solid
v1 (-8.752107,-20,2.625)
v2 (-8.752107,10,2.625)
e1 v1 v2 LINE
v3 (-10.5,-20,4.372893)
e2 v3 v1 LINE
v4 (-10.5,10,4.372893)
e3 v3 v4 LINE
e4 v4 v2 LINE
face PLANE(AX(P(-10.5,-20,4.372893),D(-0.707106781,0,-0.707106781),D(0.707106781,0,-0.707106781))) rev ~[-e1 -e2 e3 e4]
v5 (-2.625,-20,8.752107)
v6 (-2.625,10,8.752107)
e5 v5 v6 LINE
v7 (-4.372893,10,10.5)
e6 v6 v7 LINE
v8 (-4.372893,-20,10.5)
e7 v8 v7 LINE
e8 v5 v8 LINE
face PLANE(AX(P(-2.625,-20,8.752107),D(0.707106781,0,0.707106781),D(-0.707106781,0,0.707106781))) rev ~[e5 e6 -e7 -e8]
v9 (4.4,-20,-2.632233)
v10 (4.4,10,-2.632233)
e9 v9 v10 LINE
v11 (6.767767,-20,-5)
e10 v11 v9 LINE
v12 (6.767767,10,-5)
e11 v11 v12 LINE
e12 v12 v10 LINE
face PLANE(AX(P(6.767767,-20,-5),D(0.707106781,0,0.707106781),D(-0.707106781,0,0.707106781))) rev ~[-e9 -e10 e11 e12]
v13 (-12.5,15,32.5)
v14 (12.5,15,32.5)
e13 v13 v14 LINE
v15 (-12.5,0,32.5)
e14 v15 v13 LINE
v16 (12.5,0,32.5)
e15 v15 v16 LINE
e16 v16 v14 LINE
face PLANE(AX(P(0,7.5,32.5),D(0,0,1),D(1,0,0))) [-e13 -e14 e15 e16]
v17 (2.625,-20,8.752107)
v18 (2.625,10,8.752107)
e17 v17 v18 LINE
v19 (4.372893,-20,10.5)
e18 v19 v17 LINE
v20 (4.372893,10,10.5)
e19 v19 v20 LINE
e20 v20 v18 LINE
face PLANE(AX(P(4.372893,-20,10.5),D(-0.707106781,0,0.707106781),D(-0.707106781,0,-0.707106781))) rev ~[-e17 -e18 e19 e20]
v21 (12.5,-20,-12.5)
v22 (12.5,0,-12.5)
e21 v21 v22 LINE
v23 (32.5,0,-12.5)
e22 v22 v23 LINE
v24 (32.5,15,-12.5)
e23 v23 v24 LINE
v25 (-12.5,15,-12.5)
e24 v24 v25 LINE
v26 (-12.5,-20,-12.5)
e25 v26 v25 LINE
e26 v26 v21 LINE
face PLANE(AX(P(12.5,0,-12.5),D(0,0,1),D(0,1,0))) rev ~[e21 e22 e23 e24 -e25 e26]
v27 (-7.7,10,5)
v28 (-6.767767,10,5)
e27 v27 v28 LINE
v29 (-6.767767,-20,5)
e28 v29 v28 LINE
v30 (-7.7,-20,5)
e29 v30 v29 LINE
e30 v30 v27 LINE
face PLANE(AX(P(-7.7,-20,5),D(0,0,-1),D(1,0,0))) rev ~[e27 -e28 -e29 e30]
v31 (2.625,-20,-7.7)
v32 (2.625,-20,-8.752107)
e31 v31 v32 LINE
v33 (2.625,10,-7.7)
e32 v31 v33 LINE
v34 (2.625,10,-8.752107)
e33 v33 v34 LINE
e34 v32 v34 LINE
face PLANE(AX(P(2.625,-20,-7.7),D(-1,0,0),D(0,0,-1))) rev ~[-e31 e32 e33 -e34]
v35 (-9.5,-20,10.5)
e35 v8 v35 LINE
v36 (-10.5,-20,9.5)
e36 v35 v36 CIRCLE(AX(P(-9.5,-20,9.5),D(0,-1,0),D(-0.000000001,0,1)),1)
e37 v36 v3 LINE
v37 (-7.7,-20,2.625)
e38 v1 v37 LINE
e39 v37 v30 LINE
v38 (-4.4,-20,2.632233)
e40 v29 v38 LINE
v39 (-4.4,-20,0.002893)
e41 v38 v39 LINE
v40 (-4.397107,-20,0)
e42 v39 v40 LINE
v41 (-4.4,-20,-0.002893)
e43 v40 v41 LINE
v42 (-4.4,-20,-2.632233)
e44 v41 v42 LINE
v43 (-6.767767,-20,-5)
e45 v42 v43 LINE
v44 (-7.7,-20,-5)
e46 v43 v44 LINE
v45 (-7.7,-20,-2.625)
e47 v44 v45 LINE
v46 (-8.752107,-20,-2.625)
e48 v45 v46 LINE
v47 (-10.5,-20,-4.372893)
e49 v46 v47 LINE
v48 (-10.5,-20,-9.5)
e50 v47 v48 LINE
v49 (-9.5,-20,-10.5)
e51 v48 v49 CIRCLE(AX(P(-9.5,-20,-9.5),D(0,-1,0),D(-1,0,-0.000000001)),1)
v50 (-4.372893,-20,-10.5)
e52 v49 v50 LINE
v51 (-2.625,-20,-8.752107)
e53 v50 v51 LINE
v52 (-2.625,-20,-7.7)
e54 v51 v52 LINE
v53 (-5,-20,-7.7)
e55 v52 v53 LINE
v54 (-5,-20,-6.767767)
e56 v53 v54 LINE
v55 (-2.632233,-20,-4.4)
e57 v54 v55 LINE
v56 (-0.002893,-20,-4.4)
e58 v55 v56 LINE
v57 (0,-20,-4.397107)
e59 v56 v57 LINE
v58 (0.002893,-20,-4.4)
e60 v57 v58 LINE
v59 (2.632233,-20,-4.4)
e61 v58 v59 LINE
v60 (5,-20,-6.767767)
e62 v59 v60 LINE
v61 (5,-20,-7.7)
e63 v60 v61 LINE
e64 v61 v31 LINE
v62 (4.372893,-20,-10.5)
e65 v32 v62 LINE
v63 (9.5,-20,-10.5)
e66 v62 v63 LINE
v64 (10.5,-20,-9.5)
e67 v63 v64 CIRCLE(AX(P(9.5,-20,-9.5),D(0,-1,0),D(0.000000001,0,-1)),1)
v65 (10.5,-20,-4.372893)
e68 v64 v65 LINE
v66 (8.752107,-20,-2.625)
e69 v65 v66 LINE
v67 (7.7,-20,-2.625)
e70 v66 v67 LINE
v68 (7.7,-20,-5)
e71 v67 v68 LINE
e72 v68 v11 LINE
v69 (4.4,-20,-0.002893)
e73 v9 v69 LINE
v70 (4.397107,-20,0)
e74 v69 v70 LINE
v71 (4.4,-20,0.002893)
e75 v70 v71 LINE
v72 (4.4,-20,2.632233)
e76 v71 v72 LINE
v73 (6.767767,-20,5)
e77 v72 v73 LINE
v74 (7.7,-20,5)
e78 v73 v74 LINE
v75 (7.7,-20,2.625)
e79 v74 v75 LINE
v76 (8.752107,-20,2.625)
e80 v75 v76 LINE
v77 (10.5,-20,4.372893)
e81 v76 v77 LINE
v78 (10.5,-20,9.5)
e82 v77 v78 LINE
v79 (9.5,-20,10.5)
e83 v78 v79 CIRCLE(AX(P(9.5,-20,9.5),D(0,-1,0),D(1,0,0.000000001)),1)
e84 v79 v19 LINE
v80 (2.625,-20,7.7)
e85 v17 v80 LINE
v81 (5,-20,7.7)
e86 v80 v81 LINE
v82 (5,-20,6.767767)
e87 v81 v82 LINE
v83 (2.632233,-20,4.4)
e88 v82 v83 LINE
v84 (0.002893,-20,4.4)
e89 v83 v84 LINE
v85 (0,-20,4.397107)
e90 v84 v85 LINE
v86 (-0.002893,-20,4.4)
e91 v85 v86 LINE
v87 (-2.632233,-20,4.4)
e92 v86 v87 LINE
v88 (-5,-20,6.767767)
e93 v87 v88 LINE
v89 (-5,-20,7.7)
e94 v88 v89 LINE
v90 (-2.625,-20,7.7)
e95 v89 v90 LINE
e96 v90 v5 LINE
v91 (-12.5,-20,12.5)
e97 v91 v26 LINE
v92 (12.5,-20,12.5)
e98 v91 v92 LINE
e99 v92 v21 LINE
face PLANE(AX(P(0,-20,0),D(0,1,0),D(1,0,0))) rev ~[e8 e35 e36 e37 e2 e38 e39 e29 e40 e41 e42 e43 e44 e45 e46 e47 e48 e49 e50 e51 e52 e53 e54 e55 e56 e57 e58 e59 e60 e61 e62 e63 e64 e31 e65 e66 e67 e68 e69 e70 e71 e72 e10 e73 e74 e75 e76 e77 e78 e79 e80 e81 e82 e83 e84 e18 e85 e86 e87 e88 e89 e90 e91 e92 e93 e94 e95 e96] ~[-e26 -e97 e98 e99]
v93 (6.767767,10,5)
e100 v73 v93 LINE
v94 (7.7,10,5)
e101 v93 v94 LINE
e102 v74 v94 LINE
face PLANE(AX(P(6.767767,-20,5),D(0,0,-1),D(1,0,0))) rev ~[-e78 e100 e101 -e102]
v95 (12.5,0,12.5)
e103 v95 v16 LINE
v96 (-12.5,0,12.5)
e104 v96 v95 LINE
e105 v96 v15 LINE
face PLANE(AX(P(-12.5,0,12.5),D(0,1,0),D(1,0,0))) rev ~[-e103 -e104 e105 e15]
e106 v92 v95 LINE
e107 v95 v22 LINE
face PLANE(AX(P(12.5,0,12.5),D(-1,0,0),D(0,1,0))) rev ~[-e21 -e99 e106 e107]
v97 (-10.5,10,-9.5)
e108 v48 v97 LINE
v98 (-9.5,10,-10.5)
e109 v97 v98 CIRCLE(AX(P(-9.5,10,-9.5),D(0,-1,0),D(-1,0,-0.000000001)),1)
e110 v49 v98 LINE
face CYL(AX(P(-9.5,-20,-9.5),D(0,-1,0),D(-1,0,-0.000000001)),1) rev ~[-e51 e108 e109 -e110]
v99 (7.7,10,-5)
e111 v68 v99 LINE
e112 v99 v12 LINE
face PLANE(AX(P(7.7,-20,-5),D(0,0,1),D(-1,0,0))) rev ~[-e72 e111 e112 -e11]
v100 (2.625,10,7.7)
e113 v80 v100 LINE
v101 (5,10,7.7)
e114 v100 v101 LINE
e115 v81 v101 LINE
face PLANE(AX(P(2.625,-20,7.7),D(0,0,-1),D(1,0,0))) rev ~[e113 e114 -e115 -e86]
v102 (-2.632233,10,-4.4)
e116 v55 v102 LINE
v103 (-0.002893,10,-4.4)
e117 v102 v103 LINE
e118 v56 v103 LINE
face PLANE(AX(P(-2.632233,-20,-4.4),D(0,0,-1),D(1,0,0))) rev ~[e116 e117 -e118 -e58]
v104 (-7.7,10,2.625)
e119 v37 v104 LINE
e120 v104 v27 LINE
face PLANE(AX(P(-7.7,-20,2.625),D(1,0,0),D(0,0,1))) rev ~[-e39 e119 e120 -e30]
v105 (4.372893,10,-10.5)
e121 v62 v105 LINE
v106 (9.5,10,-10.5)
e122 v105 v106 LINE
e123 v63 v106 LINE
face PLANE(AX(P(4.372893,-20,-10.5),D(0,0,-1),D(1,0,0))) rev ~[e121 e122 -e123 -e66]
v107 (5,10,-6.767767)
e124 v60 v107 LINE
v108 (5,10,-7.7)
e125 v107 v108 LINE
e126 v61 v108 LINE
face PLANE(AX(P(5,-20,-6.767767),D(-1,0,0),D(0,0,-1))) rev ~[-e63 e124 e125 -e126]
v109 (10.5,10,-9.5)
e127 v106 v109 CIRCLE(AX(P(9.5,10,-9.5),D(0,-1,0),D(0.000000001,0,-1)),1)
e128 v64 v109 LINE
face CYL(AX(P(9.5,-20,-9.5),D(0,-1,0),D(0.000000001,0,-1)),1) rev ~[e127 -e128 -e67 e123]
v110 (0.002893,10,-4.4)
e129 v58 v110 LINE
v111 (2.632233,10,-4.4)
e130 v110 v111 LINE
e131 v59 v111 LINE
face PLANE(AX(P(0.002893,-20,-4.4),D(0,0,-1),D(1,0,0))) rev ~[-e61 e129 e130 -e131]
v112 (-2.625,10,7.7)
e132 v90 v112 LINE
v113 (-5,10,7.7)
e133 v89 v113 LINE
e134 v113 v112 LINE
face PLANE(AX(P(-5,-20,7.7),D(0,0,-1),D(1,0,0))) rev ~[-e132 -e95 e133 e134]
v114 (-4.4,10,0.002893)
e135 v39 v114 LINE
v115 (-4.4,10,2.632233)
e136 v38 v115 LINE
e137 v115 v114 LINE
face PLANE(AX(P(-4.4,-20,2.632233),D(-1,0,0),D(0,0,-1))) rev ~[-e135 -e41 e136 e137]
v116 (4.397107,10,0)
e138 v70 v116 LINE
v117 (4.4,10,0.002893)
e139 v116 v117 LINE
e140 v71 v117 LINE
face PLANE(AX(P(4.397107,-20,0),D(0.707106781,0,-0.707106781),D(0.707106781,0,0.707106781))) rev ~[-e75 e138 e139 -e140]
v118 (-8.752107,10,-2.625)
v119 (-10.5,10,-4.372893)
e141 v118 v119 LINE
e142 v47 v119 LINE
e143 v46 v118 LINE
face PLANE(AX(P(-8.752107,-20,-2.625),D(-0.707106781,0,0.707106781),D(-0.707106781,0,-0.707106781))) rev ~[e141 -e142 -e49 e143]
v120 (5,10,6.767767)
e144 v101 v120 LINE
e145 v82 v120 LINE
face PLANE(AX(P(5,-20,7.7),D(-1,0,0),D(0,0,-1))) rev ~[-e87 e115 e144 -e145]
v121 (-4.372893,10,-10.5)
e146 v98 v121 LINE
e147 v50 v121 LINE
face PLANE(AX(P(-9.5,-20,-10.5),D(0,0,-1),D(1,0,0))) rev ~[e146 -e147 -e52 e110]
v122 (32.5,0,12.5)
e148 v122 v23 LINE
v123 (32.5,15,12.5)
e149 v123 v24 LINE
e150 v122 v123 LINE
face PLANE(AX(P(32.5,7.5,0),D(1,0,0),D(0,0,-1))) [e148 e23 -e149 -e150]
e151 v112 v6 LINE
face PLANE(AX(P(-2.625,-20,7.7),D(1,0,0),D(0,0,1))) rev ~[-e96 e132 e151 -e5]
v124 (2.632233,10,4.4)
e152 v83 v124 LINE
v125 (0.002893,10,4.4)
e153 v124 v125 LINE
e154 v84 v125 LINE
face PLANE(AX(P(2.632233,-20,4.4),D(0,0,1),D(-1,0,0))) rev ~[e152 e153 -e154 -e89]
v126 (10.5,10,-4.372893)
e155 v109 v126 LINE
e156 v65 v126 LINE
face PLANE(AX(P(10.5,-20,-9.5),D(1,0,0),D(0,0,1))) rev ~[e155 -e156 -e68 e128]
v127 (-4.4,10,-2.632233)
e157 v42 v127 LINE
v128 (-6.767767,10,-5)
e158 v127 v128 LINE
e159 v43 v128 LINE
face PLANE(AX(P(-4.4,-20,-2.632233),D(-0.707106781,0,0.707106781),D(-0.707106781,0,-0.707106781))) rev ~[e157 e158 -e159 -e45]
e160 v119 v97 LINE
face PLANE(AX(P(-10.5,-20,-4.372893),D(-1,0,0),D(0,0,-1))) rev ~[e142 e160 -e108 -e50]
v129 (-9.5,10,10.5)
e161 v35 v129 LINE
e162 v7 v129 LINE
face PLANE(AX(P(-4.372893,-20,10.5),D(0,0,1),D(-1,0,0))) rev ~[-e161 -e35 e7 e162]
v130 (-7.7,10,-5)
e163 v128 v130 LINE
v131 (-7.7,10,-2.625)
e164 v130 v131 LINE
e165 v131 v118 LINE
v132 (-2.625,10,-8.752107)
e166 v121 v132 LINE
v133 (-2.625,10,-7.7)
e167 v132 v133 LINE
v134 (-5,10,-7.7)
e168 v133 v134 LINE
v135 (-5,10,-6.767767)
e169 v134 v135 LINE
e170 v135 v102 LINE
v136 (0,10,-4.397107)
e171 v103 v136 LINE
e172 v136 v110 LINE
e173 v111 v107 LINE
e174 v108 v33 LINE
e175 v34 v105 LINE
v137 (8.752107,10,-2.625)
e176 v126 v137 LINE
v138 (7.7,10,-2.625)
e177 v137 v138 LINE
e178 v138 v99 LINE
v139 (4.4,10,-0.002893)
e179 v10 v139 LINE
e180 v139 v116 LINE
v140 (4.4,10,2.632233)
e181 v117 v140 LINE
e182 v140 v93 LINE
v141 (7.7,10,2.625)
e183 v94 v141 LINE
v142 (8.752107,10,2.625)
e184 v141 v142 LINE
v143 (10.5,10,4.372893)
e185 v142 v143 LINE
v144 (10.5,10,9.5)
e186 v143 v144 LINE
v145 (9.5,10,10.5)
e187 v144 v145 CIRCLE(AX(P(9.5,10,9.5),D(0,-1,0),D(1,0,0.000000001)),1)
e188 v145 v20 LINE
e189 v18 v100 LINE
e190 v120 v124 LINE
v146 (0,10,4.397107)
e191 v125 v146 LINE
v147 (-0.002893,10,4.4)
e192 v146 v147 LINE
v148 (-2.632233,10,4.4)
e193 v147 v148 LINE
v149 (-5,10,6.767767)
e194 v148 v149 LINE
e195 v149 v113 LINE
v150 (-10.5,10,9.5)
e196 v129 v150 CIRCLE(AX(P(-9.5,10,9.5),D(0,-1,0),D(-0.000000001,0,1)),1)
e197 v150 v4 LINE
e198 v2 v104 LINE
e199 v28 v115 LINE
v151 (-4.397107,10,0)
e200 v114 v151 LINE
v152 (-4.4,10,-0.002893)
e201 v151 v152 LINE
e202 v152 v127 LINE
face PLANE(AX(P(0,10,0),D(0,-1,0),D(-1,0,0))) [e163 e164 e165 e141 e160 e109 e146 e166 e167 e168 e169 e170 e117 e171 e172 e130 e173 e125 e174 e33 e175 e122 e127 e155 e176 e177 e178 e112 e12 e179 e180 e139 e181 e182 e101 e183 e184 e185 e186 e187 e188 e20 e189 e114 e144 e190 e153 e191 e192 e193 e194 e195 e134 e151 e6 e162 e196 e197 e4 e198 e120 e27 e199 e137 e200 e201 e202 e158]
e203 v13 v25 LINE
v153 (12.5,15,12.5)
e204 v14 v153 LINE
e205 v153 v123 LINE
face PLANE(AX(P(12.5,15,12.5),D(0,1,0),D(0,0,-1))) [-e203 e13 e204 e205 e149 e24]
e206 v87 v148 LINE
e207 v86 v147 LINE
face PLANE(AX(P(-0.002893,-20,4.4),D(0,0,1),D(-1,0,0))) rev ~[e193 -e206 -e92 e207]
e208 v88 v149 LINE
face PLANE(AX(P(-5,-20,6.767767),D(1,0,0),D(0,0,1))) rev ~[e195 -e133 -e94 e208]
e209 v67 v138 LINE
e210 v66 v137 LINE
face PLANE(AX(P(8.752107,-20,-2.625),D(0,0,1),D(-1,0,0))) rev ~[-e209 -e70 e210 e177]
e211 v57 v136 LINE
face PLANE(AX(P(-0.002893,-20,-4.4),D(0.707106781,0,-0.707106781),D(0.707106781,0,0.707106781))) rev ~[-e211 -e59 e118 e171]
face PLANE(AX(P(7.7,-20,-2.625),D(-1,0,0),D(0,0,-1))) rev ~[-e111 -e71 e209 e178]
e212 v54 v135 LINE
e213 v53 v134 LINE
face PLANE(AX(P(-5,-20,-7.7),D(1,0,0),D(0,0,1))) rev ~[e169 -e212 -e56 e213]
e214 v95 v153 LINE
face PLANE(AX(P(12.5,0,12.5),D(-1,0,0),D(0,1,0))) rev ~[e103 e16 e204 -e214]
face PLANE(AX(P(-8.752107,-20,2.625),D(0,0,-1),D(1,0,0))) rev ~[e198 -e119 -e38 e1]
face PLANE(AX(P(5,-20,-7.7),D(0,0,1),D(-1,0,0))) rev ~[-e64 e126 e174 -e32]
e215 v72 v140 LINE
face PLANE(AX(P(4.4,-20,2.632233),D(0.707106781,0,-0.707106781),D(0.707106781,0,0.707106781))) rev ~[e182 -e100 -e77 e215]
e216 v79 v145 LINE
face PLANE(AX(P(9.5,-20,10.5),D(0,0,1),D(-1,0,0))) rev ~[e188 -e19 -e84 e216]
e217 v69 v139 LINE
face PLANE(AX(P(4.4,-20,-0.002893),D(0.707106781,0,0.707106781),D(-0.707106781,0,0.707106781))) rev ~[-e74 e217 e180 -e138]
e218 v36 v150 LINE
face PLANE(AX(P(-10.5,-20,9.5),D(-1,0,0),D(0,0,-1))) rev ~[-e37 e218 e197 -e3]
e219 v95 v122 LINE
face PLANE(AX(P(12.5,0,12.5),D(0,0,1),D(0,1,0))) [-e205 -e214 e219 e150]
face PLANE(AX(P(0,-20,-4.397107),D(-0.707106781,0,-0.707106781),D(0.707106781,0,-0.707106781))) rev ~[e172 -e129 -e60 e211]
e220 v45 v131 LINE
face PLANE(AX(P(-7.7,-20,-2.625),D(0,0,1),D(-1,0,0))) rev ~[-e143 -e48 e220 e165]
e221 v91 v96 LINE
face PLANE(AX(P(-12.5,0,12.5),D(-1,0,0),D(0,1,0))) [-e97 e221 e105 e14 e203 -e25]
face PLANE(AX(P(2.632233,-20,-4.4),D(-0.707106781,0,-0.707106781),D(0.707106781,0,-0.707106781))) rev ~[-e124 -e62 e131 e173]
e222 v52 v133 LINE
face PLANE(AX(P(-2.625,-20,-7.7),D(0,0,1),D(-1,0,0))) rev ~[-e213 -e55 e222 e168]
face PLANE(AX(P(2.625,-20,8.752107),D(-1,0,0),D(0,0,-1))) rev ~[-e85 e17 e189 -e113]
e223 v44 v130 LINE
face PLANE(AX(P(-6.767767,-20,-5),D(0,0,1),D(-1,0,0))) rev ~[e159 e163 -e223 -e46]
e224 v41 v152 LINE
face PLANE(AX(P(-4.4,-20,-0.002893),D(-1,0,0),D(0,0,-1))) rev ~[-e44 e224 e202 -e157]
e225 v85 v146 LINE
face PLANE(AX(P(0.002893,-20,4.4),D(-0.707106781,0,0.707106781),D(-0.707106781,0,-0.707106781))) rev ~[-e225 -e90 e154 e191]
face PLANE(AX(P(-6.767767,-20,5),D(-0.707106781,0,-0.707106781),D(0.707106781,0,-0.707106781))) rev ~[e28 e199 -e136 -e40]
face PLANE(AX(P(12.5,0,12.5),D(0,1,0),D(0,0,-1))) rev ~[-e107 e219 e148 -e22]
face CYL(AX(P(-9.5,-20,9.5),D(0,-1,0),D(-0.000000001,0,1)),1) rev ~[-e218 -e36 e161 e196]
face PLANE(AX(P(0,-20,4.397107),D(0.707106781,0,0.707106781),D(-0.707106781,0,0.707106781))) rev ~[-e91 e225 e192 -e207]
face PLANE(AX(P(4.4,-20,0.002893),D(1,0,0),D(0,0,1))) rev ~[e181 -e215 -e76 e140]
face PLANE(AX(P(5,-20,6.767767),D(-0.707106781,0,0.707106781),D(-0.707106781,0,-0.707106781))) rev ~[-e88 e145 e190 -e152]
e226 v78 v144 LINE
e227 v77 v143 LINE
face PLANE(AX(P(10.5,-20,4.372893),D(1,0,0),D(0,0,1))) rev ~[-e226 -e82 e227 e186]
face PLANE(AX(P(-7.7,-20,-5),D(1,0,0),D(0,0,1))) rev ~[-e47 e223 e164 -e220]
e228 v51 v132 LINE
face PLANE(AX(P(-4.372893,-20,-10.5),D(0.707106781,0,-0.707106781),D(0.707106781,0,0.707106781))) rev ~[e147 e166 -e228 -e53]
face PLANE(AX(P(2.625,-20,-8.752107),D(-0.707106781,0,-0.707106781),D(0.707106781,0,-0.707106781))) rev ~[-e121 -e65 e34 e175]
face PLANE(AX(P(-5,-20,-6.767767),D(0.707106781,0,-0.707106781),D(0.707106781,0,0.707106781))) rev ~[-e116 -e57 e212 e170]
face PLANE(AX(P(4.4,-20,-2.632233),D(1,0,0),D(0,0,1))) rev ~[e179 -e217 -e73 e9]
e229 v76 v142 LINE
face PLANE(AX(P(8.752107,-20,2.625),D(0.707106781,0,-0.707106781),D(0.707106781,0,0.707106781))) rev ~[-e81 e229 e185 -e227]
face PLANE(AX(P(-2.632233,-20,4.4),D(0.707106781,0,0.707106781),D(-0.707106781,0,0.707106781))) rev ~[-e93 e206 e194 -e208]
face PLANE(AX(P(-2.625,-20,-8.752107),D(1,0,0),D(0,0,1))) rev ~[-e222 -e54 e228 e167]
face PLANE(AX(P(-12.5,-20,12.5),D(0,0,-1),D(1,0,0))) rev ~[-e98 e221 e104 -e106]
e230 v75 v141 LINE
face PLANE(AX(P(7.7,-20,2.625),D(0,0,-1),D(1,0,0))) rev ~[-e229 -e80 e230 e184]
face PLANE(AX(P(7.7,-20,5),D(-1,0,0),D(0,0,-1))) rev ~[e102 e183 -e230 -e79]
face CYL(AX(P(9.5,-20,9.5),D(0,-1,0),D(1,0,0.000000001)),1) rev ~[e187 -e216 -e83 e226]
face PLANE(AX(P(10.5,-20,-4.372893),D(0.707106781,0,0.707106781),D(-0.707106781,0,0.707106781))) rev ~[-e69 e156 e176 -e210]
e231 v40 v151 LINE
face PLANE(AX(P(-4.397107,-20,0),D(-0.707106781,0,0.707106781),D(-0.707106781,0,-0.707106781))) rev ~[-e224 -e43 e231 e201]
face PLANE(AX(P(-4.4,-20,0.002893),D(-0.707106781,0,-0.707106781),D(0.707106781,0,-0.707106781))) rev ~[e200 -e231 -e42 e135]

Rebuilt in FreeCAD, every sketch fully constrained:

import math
import FreeCAD as App
import Part
import Sketcher
from FreeCAD import Vector

doc = App.newDocument("Part")
body = doc.addObject("PartDesign::Body", "Body")

# Sketch on XZ plane
sketch1 = body.newObject("Sketcher::SketchObject", "Sketch")
sketch1.AttachmentSupport = (doc.getObject("XZ_Plane"), [""])
sketch1.MapMode = "FlatFace"
sketch1.addGeometry(Part.LineSegment(Vector(-12.5, -12.5, 0), Vector(-12.5, 12.5, 0)), False)
sketch1.addGeometry(Part.LineSegment(Vector(-12.5, 12.5, 0), Vector(12.5, 12.5, 0)), False)
sketch1.addGeometry(Part.LineSegment(Vector(12.5, 12.5, 0), Vector(12.5, -12.5, 0)), False)
sketch1.addGeometry(Part.LineSegment(Vector(12.5, -12.5, 0), Vector(-12.5, -12.5, 0)), False)
sketch1.addConstraint(Sketcher.Constraint("Coincident", 0, 2, 1, 1))
sketch1.addConstraint(Sketcher.Constraint("Coincident", 1, 2, 2, 1))
sketch1.addConstraint(Sketcher.Constraint("Coincident", 2, 2, 3, 1))
sketch1.addConstraint(Sketcher.Constraint("Coincident", 3, 2, 0, 1))
sketch1.addConstraint(Sketcher.Constraint("Vertical", 0))
sketch1.addConstraint(Sketcher.Constraint("Horizontal", 1))
sketch1.addConstraint(Sketcher.Constraint("Vertical", 2))
sketch1.addConstraint(Sketcher.Constraint("Horizontal", 3))
sketch1.addConstraint(Sketcher.Constraint("Symmetric", 0, 2, 2, 2, -1, 1))
sketch1.addConstraint(Sketcher.Constraint("Equal", 3, 0))
sketch1.addConstraint(Sketcher.Constraint("DistanceX", 1, 1, 1, 2, 25.0))
pad1 = body.newObject("PartDesign::Pad", "Pad")
pad1.Profile = sketch1
pad1.Type = "TwoLengths"
pad1.Length = 15
pad1.Length2 = 20
pad1.Reversed = True

# Sketch on XZ plane
sketch2 = body.newObject("Sketcher::SketchObject", "Sketch001")
sketch2.AttachmentSupport = (doc.getObject("XZ_Plane"), [""])
sketch2.MapMode = "FlatFace"
sketch2.AttachmentOffset = App.Placement(Vector(0, 0, 20), App.Rotation())
sketch2.addGeometry(Part.LineSegment(Vector(-4.4, 0.002893, 0), Vector(-4.397107, 0, 0)), False)
sketch2.addGeometry(Part.LineSegment(Vector(-4.397107, 0, 0), Vector(-4.4, -0.002893, 0)), False)
sketch2.addGeometry(Part.LineSegment(Vector(-4.4, -0.002893, 0), Vector(-4.4, -2.632233, 0)), False)
sketch2.addGeometry(Part.LineSegment(Vector(-4.4, -2.632233, 0), Vector(-6.767767, -5, 0)), False)
sketch2.addGeometry(Part.LineSegment(Vector(-6.767767, -5, 0), Vector(-7.7, -5, 0)), False)
sketch2.addGeometry(Part.LineSegment(Vector(-7.7, -5, 0), Vector(-7.7, -2.625, 0)), False)
sketch2.addGeometry(Part.LineSegment(Vector(-7.7, -2.625, 0), Vector(-8.752107, -2.625, 0)), False)
sketch2.addGeometry(Part.LineSegment(Vector(-8.752107, -2.625, 0), Vector(-10.5, -4.372893, 0)), False)
sketch2.addGeometry(Part.LineSegment(Vector(-10.5, -4.372893, 0), Vector(-10.5, -9.5, 0)), False)
sketch2.addGeometry(Part.ArcOfCircle(Part.Circle(Vector(-9.5, -9.5, 0), Vector(0, 0, 1), 1), math.radians(-180), math.radians(-90)), False)
sketch2.addGeometry(Part.LineSegment(Vector(-9.5, -10.5, 0), Vector(-4.372893, -10.5, 0)), False)
sketch2.addGeometry(Part.LineSegment(Vector(-4.372893, -10.5, 0), Vector(-2.625, -8.752107, 0)), False)
sketch2.addGeometry(Part.LineSegment(Vector(-2.625, -8.752107, 0), Vector(-2.625, -7.7, 0)), False)
sketch2.addGeometry(Part.LineSegment(Vector(-2.625, -7.7, 0), Vector(-5, -7.7, 0)), False)
sketch2.addGeometry(Part.LineSegment(Vector(-5, -7.7, 0), Vector(-5, -6.767767, 0)), False)
sketch2.addGeometry(Part.LineSegment(Vector(-5, -6.767767, 0), Vector(-2.632233, -4.4, 0)), False)
sketch2.addGeometry(Part.LineSegment(Vector(-2.632233, -4.4, 0), Vector(-0.002893, -4.4, 0)), False)
sketch2.addGeometry(Part.LineSegment(Vector(-0.002893, -4.4, 0), Vector(0, -4.397107, 0)), False)
sketch2.addGeometry(Part.LineSegment(Vector(0, -4.397107, 0), Vector(0.002893, -4.4, 0)), False)
sketch2.addGeometry(Part.LineSegment(Vector(0.002893, -4.4, 0), Vector(2.632233, -4.4, 0)), False)
sketch2.addGeometry(Part.LineSegment(Vector(2.632233, -4.4, 0), Vector(5, -6.767767, 0)), False)
sketch2.addGeometry(Part.LineSegment(Vector(5, -6.767767, 0), Vector(5, -7.7, 0)), False)
sketch2.addGeometry(Part.LineSegment(Vector(5, -7.7, 0), Vector(2.625, -7.7, 0)), False)
sketch2.addGeometry(Part.LineSegment(Vector(2.625, -7.7, 0), Vector(2.625, -8.752107, 0)), False)
sketch2.addGeometry(Part.LineSegment(Vector(2.625, -8.752107, 0), Vector(4.372893, -10.5, 0)), False)
sketch2.addGeometry(Part.LineSegment(Vector(4.372893, -10.5, 0), Vector(9.5, -10.5, 0)), False)
sketch2.addGeometry(Part.ArcOfCircle(Part.Circle(Vector(9.5, -9.5, 0), Vector(0, 0, 1), 1), math.radians(-90), math.radians(0)), False)
sketch2.addGeometry(Part.LineSegment(Vector(10.5, -9.5, 0), Vector(10.5, -4.372893, 0)), False)
sketch2.addGeometry(Part.LineSegment(Vector(10.5, -4.372893, 0), Vector(8.752107, -2.625, 0)), False)
sketch2.addGeometry(Part.LineSegment(Vector(8.752107, -2.625, 0), Vector(7.7, -2.625, 0)), False)
sketch2.addGeometry(Part.LineSegment(Vector(7.7, -2.625, 0), Vector(7.7, -5, 0)), False)
sketch2.addGeometry(Part.LineSegment(Vector(7.7, -5, 0), Vector(6.767767, -5, 0)), False)
sketch2.addGeometry(Part.LineSegment(Vector(6.767767, -5, 0), Vector(4.4, -2.632233, 0)), False)
sketch2.addGeometry(Part.LineSegment(Vector(4.4, -2.632233, 0), Vector(4.4, -0.002893, 0)), False)
sketch2.addGeometry(Part.LineSegment(Vector(4.4, -0.002893, 0), Vector(4.397107, 0, 0)), False)
sketch2.addGeometry(Part.LineSegment(Vector(4.397107, 0, 0), Vector(4.4, 0.002893, 0)), False)
sketch2.addGeometry(Part.LineSegment(Vector(4.4, 0.002893, 0), Vector(4.4, 2.632233, 0)), False)
sketch2.addGeometry(Part.LineSegment(Vector(4.4, 2.632233, 0), Vector(6.767767, 5, 0)), False)
sketch2.addGeometry(Part.LineSegment(Vector(6.767767, 5, 0), Vector(7.7, 5, 0)), False)
sketch2.addGeometry(Part.LineSegment(Vector(7.7, 5, 0), Vector(7.7, 2.625, 0)), False)
sketch2.addGeometry(Part.LineSegment(Vector(7.7, 2.625, 0), Vector(8.752107, 2.625, 0)), False)
sketch2.addGeometry(Part.LineSegment(Vector(8.752107, 2.625, 0), Vector(10.5, 4.372893, 0)), False)
sketch2.addGeometry(Part.LineSegment(Vector(10.5, 4.372893, 0), Vector(10.5, 9.5, 0)), False)
sketch2.addGeometry(Part.ArcOfCircle(Part.Circle(Vector(9.5, 9.5, 0), Vector(0, 0, 1), 1), math.radians(0), math.radians(90)), False)
sketch2.addGeometry(Part.LineSegment(Vector(9.5, 10.5, 0), Vector(4.372893, 10.5, 0)), False)
sketch2.addGeometry(Part.LineSegment(Vector(4.372893, 10.5, 0), Vector(2.625, 8.752107, 0)), False)
sketch2.addGeometry(Part.LineSegment(Vector(2.625, 8.752107, 0), Vector(2.625, 7.7, 0)), False)
sketch2.addGeometry(Part.LineSegment(Vector(2.625, 7.7, 0), Vector(5, 7.7, 0)), False)
sketch2.addGeometry(Part.LineSegment(Vector(5, 7.7, 0), Vector(5, 6.767767, 0)), False)
sketch2.addGeometry(Part.LineSegment(Vector(5, 6.767767, 0), Vector(2.632233, 4.4, 0)), False)
sketch2.addGeometry(Part.LineSegment(Vector(2.632233, 4.4, 0), Vector(0.002893, 4.4, 0)), False)
sketch2.addGeometry(Part.LineSegment(Vector(0.002893, 4.4, 0), Vector(0, 4.397107, 0)), False)
sketch2.addGeometry(Part.LineSegment(Vector(0, 4.397107, 0), Vector(-0.002893, 4.4, 0)), False)
sketch2.addGeometry(Part.LineSegment(Vector(-0.002893, 4.4, 0), Vector(-2.632233, 4.4, 0)), False)
sketch2.addGeometry(Part.LineSegment(Vector(-2.632233, 4.4, 0), Vector(-5, 6.767767, 0)), False)
sketch2.addGeometry(Part.LineSegment(Vector(-5, 6.767767, 0), Vector(-5, 7.7, 0)), False)
sketch2.addGeometry(Part.LineSegment(Vector(-5, 7.7, 0), Vector(-2.625, 7.7, 0)), False)
sketch2.addGeometry(Part.LineSegment(Vector(-2.625, 7.7, 0), Vector(-2.625, 8.752107, 0)), False)
sketch2.addGeometry(Part.LineSegment(Vector(-2.625, 8.752107, 0), Vector(-4.372893, 10.5, 0)), False)
sketch2.addGeometry(Part.LineSegment(Vector(-4.372893, 10.5, 0), Vector(-9.5, 10.5, 0)), False)
sketch2.addGeometry(Part.ArcOfCircle(Part.Circle(Vector(-9.5, 9.5, 0), Vector(0, 0, 1), 1), math.radians(90), math.radians(180)), False)
sketch2.addGeometry(Part.LineSegment(Vector(-10.5, 9.5, 0), Vector(-10.5, 4.372893, 0)), False)
sketch2.addGeometry(Part.LineSegment(Vector(-10.5, 4.372893, 0), Vector(-8.752107, 2.625, 0)), False)
sketch2.addGeometry(Part.LineSegment(Vector(-8.752107, 2.625, 0), Vector(-7.7, 2.625, 0)), False)
sketch2.addGeometry(Part.LineSegment(Vector(-7.7, 2.625, 0), Vector(-7.7, 5, 0)), False)
sketch2.addGeometry(Part.LineSegment(Vector(-7.7, 5, 0), Vector(-6.767767, 5, 0)), False)
sketch2.addGeometry(Part.LineSegment(Vector(-6.767767, 5, 0), Vector(-4.4, 2.632233, 0)), False)
sketch2.addGeometry(Part.LineSegment(Vector(-4.4, 2.632233, 0), Vector(-4.4, 0.002893, 0)), False)
sketch2.addConstraint(Sketcher.Constraint("Coincident", 0, 2, 1, 1))
sketch2.addConstraint(Sketcher.Constraint("Coincident", 1, 2, 2, 1))
sketch2.addConstraint(Sketcher.Constraint("Coincident", 2, 2, 3, 1))
sketch2.addConstraint(Sketcher.Constraint("Coincident", 3, 2, 4, 1))
sketch2.addConstraint(Sketcher.Constraint("Coincident", 4, 2, 5, 1))
sketch2.addConstraint(Sketcher.Constraint("Coincident", 5, 2, 6, 1))
sketch2.addConstraint(Sketcher.Constraint("Coincident", 6, 2, 7, 1))
sketch2.addConstraint(Sketcher.Constraint("Coincident", 7, 2, 8, 1))
sketch2.addConstraint(Sketcher.Constraint("Tangent", 8, 2, 9, 1))
sketch2.addConstraint(Sketcher.Constraint("Tangent", 9, 2, 10, 1))
sketch2.addConstraint(Sketcher.Constraint("Coincident", 10, 2, 11, 1))
sketch2.addConstraint(Sketcher.Constraint("Coincident", 11, 2, 12, 1))
sketch2.addConstraint(Sketcher.Constraint("Coincident", 12, 2, 13, 1))
sketch2.addConstraint(Sketcher.Constraint("Coincident", 13, 2, 14, 1))
sketch2.addConstraint(Sketcher.Constraint("Coincident", 14, 2, 15, 1))
sketch2.addConstraint(Sketcher.Constraint("Coincident", 15, 2, 16, 1))
sketch2.addConstraint(Sketcher.Constraint("Coincident", 16, 2, 17, 1))
sketch2.addConstraint(Sketcher.Constraint("Coincident", 17, 2, 18, 1))
sketch2.addConstraint(Sketcher.Constraint("Coincident", 18, 2, 19, 1))
sketch2.addConstraint(Sketcher.Constraint("Coincident", 19, 2, 20, 1))
sketch2.addConstraint(Sketcher.Constraint("Coincident", 20, 2, 21, 1))
sketch2.addConstraint(Sketcher.Constraint("Coincident", 21, 2, 22, 1))
sketch2.addConstraint(Sketcher.Constraint("Coincident", 22, 2, 23, 1))
sketch2.addConstraint(Sketcher.Constraint("Coincident", 23, 2, 24, 1))
sketch2.addConstraint(Sketcher.Constraint("Coincident", 24, 2, 25, 1))
sketch2.addConstraint(Sketcher.Constraint("Tangent", 25, 2, 26, 1))
sketch2.addConstraint(Sketcher.Constraint("Tangent", 26, 2, 27, 1))
sketch2.addConstraint(Sketcher.Constraint("Coincident", 27, 2, 28, 1))
sketch2.addConstraint(Sketcher.Constraint("Coincident", 28, 2, 29, 1))
sketch2.addConstraint(Sketcher.Constraint("Coincident", 29, 2, 30, 1))
sketch2.addConstraint(Sketcher.Constraint("Coincident", 30, 2, 31, 1))
sketch2.addConstraint(Sketcher.Constraint("Coincident", 31, 2, 32, 1))
sketch2.addConstraint(Sketcher.Constraint("Coincident", 32, 2, 33, 1))
sketch2.addConstraint(Sketcher.Constraint("Coincident", 33, 2, 34, 1))
sketch2.addConstraint(Sketcher.Constraint("Coincident", 34, 2, 35, 1))
sketch2.addConstraint(Sketcher.Constraint("Coincident", 35, 2, 36, 1))
sketch2.addConstraint(Sketcher.Constraint("Coincident", 36, 2, 37, 1))
sketch2.addConstraint(Sketcher.Constraint("Coincident", 37, 2, 38, 1))
sketch2.addConstraint(Sketcher.Constraint("Coincident", 38, 2, 39, 1))
sketch2.addConstraint(Sketcher.Constraint("Coincident", 39, 2, 40, 1))
sketch2.addConstraint(Sketcher.Constraint("Coincident", 40, 2, 41, 1))
sketch2.addConstraint(Sketcher.Constraint("Coincident", 41, 2, 42, 1))
sketch2.addConstraint(Sketcher.Constraint("Tangent", 42, 2, 43, 1))
sketch2.addConstraint(Sketcher.Constraint("Tangent", 43, 2, 44, 1))
sketch2.addConstraint(Sketcher.Constraint("Coincident", 44, 2, 45, 1))
sketch2.addConstraint(Sketcher.Constraint("Coincident", 45, 2, 46, 1))
sketch2.addConstraint(Sketcher.Constraint("Coincident", 46, 2, 47, 1))
sketch2.addConstraint(Sketcher.Constraint("Coincident", 47, 2, 48, 1))
sketch2.addConstraint(Sketcher.Constraint("Coincident", 48, 2, 49, 1))
sketch2.addConstraint(Sketcher.Constraint("Coincident", 49, 2, 50, 1))
sketch2.addConstraint(Sketcher.Constraint("Coincident", 50, 2, 51, 1))
sketch2.addConstraint(Sketcher.Constraint("Coincident", 51, 2, 52, 1))
sketch2.addConstraint(Sketcher.Constraint("Coincident", 52, 2, 53, 1))
sketch2.addConstraint(Sketcher.Constraint("Coincident", 53, 2, 54, 1))
sketch2.addConstraint(Sketcher.Constraint("Coincident", 54, 2, 55, 1))
sketch2.addConstraint(Sketcher.Constraint("Coincident", 55, 2, 56, 1))
sketch2.addConstraint(Sketcher.Constraint("Coincident", 56, 2, 57, 1))
sketch2.addConstraint(Sketcher.Constraint("Coincident", 57, 2, 58, 1))
sketch2.addConstraint(Sketcher.Constraint("Coincident", 58, 2, 59, 1))
sketch2.addConstraint(Sketcher.Constraint("Tangent", 59, 2, 60, 1))
sketch2.addConstraint(Sketcher.Constraint("Tangent", 60, 2, 61, 1))
sketch2.addConstraint(Sketcher.Constraint("Coincident", 61, 2, 62, 1))
sketch2.addConstraint(Sketcher.Constraint("Coincident", 62, 2, 63, 1))
sketch2.addConstraint(Sketcher.Constraint("Coincident", 63, 2, 64, 1))
sketch2.addConstraint(Sketcher.Constraint("Coincident", 64, 2, 65, 1))
sketch2.addConstraint(Sketcher.Constraint("Coincident", 65, 2, 66, 1))
sketch2.addConstraint(Sketcher.Constraint("Coincident", 66, 2, 67, 1))
sketch2.addConstraint(Sketcher.Constraint("Coincident", 67, 2, 0, 1))
sketch2.addConstraint(Sketcher.Constraint("Vertical", 2))
sketch2.addConstraint(Sketcher.Constraint("Horizontal", 4))
sketch2.addConstraint(Sketcher.Constraint("Vertical", 5))
sketch2.addConstraint(Sketcher.Constraint("Horizontal", 6))
sketch2.addConstraint(Sketcher.Constraint("Vertical", 8))
sketch2.addConstraint(Sketcher.Constraint("Horizontal", 10))
sketch2.addConstraint(Sketcher.Constraint("Vertical", 12))
sketch2.addConstraint(Sketcher.Constraint("Horizontal", 13))
sketch2.addConstraint(Sketcher.Constraint("Vertical", 14))
sketch2.addConstraint(Sketcher.Constraint("Horizontal", 16))
sketch2.addConstraint(Sketcher.Constraint("Horizontal", 19))
sketch2.addConstraint(Sketcher.Constraint("Vertical", 21))
sketch2.addConstraint(Sketcher.Constraint("Horizontal", 22))
sketch2.addConstraint(Sketcher.Constraint("Vertical", 23))
sketch2.addConstraint(Sketcher.Constraint("Horizontal", 25))
sketch2.addConstraint(Sketcher.Constraint("Vertical", 27))
sketch2.addConstraint(Sketcher.Constraint("Horizontal", 29))
sketch2.addConstraint(Sketcher.Constraint("Vertical", 30))
sketch2.addConstraint(Sketcher.Constraint("Horizontal", 31))
sketch2.addConstraint(Sketcher.Constraint("Vertical", 33))
sketch2.addConstraint(Sketcher.Constraint("Vertical", 36))
sketch2.addConstraint(Sketcher.Constraint("Horizontal", 38))
sketch2.addConstraint(Sketcher.Constraint("Vertical", 39))
sketch2.addConstraint(Sketcher.Constraint("Horizontal", 40))
sketch2.addConstraint(Sketcher.Constraint("Vertical", 42))
sketch2.addConstraint(Sketcher.Constraint("Horizontal", 44))
sketch2.addConstraint(Sketcher.Constraint("Vertical", 46))
sketch2.addConstraint(Sketcher.Constraint("Horizontal", 47))
sketch2.addConstraint(Sketcher.Constraint("Vertical", 48))
sketch2.addConstraint(Sketcher.Constraint("Horizontal", 50))
sketch2.addConstraint(Sketcher.Constraint("Horizontal", 53))
sketch2.addConstraint(Sketcher.Constraint("Vertical", 55))
sketch2.addConstraint(Sketcher.Constraint("Horizontal", 56))
sketch2.addConstraint(Sketcher.Constraint("Vertical", 57))
sketch2.addConstraint(Sketcher.Constraint("Horizontal", 59))
sketch2.addConstraint(Sketcher.Constraint("Vertical", 61))
sketch2.addConstraint(Sketcher.Constraint("Horizontal", 63))
sketch2.addConstraint(Sketcher.Constraint("Vertical", 64))
sketch2.addConstraint(Sketcher.Constraint("Horizontal", 65))
sketch2.addConstraint(Sketcher.Constraint("Vertical", 67))
sketch2.addConstraint(Sketcher.Constraint("Equal", 9, 26))
sketch2.addConstraint(Sketcher.Constraint("Equal", 26, 43))
sketch2.addConstraint(Sketcher.Constraint("Equal", 43, 60))
sketch2.addConstraint(Sketcher.Constraint("Symmetric", 9, 3, 43, 3, -1, 1))
sketch2.addConstraint(Sketcher.Constraint("Symmetric", 26, 3, 60, 3, -1, 1))
sketch2.addConstraint(Sketcher.Constraint("Symmetric", 0, 2, 34, 2, -1, 1))
sketch2.addConstraint(Sketcher.Constraint("Symmetric", 1, 2, 35, 2, -1, 1))
sketch2.addConstraint(Sketcher.Constraint("Symmetric", 3, 2, 37, 2, -1, 1))
sketch2.addConstraint(Sketcher.Constraint("Symmetric", 5, 2, 39, 2, -1, 1))
sketch2.addConstraint(Sketcher.Constraint("Symmetric", 11, 2, 45, 2, -1, 1))
sketch2.addConstraint(Sketcher.Constraint("Symmetric", 13, 2, 47, 2, -1, 1))
sketch2.addConstraint(Sketcher.Constraint("Symmetric", 15, 2, 49, 2, -1, 1))
sketch2.addConstraint(Sketcher.Constraint("Symmetric", 17, 2, 51, 2, -1, 1))
sketch2.addConstraint(Sketcher.Constraint("Symmetric", 18, 2, 52, 2, -1, 1))
sketch2.addConstraint(Sketcher.Constraint("Symmetric", 20, 2, 54, 2, -1, 1))
sketch2.addConstraint(Sketcher.Constraint("Symmetric", 22, 2, 56, 2, -1, 1))
sketch2.addConstraint(Sketcher.Constraint("Symmetric", 28, 2, 62, 2, -1, 1))
sketch2.addConstraint(Sketcher.Constraint("Symmetric", 30, 2, 64, 2, -1, 1))
sketch2.addConstraint(Sketcher.Constraint("Symmetric", 32, 2, 66, 2, -1, 1))
sketch2.addConstraint(Sketcher.Constraint("Symmetric", 9, 3, 26, 3, -2))
sketch2.addConstraint(Sketcher.Constraint("Symmetric", 16, 2, 18, 2, -2))
sketch2.addConstraint(Sketcher.Constraint("Symmetric", 14, 2, 20, 2, -2))
sketch2.addConstraint(Sketcher.Constraint("Symmetric", 12, 2, 22, 2, -2))
sketch2.addConstraint(Sketcher.Constraint("Symmetric", 6, 2, 28, 2, -2))
sketch2.addConstraint(Sketcher.Constraint("Symmetric", 4, 2, 30, 2, -2))
sketch2.addConstraint(Sketcher.Constraint("Symmetric", 2, 2, 32, 2, -2))
sketch2.addConstraint(Sketcher.Constraint("PointOnObject", 0, 2, -1))
sketch2.addConstraint(Sketcher.Constraint("PointOnObject", 17, 2, -2))
sketch2.addConstraint(Sketcher.Constraint("Perpendicular", 0, 1))
sketch2.addConstraint(Sketcher.Constraint("Parallel", 1, 3))
sketch2.addConstraint(Sketcher.Constraint("Parallel", 3, 7))
sketch2.addConstraint(Sketcher.Constraint("Parallel", 7, 11))
sketch2.addConstraint(Sketcher.Constraint("Parallel", 11, 15))
sketch2.addConstraint(Sketcher.Constraint("Parallel", 15, 17))
sketch2.addConstraint(Sketcher.Constraint("Perpendicular", 15, 20))
sketch2.addConstraint(Sketcher.Constraint("Parallel", 20, 24))
sketch2.addConstraint(Sketcher.Constraint("Parallel", 24, 28))
sketch2.addConstraint(Sketcher.Constraint("Parallel", 28, 32))
sketch2.addConstraint(Sketcher.Constraint("Parallel", 32, 34))
sketch2.addConstraint(Sketcher.Constraint("Perpendicular", 32, 37))
sketch2.addConstraint(Sketcher.Constraint("Parallel", 37, 41))
sketch2.addConstraint(Sketcher.Constraint("Parallel", 41, 45))
sketch2.addConstraint(Sketcher.Constraint("Parallel", 45, 49))
sketch2.addConstraint(Sketcher.Constraint("Parallel", 49, 51))
sketch2.addConstraint(Sketcher.Constraint("Perpendicular", 49, 54))
sketch2.addConstraint(Sketcher.Constraint("Parallel", 54, 58))
sketch2.addConstraint(Sketcher.Constraint("Parallel", 58, 62))
sketch2.addConstraint(Sketcher.Constraint("Parallel", 62, 66))
sketch2.addConstraint(Sketcher.Constraint("Horizontal", 11, 2, 23, 2))
sketch2.addConstraint(Sketcher.Constraint("Horizontal", 7, 2, 27, 2))
sketch2.addConstraint(Sketcher.Constraint("Horizontal", 45, 2, 57, 2))
sketch2.addConstraint(Sketcher.Constraint("Horizontal", 41, 2, 61, 2))
sketch2.addConstraint(Sketcher.Constraint("Equal", 53, 2))
sketch2.addConstraint(Sketcher.Constraint("Equal", 56, 5))
sketch2.addConstraint(Sketcher.Constraint("Equal", 59, 8))
sketch2.addConstraint(Sketcher.Constraint("Equal", 63, 12))
sketch2.addConstraint(Sketcher.Constraint("Equal", 65, 14))
sketch2.addConstraint(Sketcher.Constraint("Equal", 7, 11))
sketch2.addConstraint(Sketcher.Constraint("Equal", 3, 15))
sketch2.addConstraint(Sketcher.Constraint("Equal", 1, 17))
sketch2.addConstraint(Sketcher.Constraint("Radius", 9, 1.0))
sketch2.addConstraint(Sketcher.Constraint("DistanceY", 3, 2, -1, 1, 5.0))
sketch2.addConstraint(Sketcher.Constraint("DistanceX", 9, 3, -1, 1, 9.5))
sketch2.addConstraint(Sketcher.Constraint("DistanceX", 1, 2, -1, 1, 4.4))
sketch2.addConstraint(Sketcher.Constraint("DistanceX", 4, 2, -1, 1, 7.7))
sketch2.addConstraint(Sketcher.Constraint("DistanceX", 13, 2, 13, 1, 2.375))
sketch2.addConstraint(Sketcher.Constraint("DistanceX", 16, 1, 16, 2, 2.62934))
sketch2.addConstraint(Sketcher.Constraint("Distance", 0, 0.004092))
sketch2.addConstraint(Sketcher.Constraint("DistanceX", 6, 2, 6, 1, 1.052107))
pocket1 = body.newObject("PartDesign::Pocket", "Pocket")
pocket1.Profile = sketch2
pocket1.Length = 30

# Sketch on XY plane
sketch3 = body.newObject("Sketcher::SketchObject", "Sketch002")
sketch3.AttachmentSupport = (doc.getObject("XY_Plane"), [""])
sketch3.MapMode = "FlatFace"
sketch3.AttachmentOffset = App.Placement(Vector(0, 0, 12.5), App.Rotation())
sketch3.addGeometry(Part.LineSegment(Vector(-12.5, 15, 0), Vector(-12.5, 0, 0)), False)
sketch3.addGeometry(Part.LineSegment(Vector(-12.5, 0, 0), Vector(12.5, 0, 0)), False)
sketch3.addGeometry(Part.LineSegment(Vector(12.5, 0, 0), Vector(12.5, 15, 0)), False)
sketch3.addGeometry(Part.LineSegment(Vector(12.5, 15, 0), Vector(-12.5, 15, 0)), False)
sketch3.addConstraint(Sketcher.Constraint("Coincident", 0, 2, 1, 1))
sketch3.addConstraint(Sketcher.Constraint("Coincident", 1, 2, 2, 1))
sketch3.addConstraint(Sketcher.Constraint("Coincident", 2, 2, 3, 1))
sketch3.addConstraint(Sketcher.Constraint("Coincident", 3, 2, 0, 1))
sketch3.addConstraint(Sketcher.Constraint("Vertical", 0))
sketch3.addConstraint(Sketcher.Constraint("Horizontal", 1))
sketch3.addConstraint(Sketcher.Constraint("Vertical", 2))
sketch3.addConstraint(Sketcher.Constraint("Horizontal", 3))
sketch3.addConstraint(Sketcher.Constraint("Symmetric", 0, 2, 1, 2, -1, 1))
sketch3.addConstraint(Sketcher.Constraint("DistanceX", 1, 1, 1, 2, 25.0))
sketch3.addConstraint(Sketcher.Constraint("DistanceY", 0, 2, 0, 1, 15.0))
pad2 = body.newObject("PartDesign::Pad", "Pad001")
pad2.Profile = sketch3
pad2.Length = 20

# Sketch on YZ plane
sketch4 = body.newObject("Sketcher::SketchObject", "Sketch003")
sketch4.AttachmentSupport = (doc.getObject("YZ_Plane"), [""])
sketch4.MapMode = "FlatFace"
sketch4.AttachmentOffset = App.Placement(Vector(0, 0, 12.5), App.Rotation())
sketch4.addGeometry(Part.LineSegment(Vector(15, 12.5, 0), Vector(0, 12.5, 0)), False)
sketch4.addGeometry(Part.LineSegment(Vector(0, 12.5, 0), Vector(0, -12.5, 0)), False)
sketch4.addGeometry(Part.LineSegment(Vector(0, -12.5, 0), Vector(15, -12.5, 0)), False)
sketch4.addGeometry(Part.LineSegment(Vector(15, -12.5, 0), Vector(15, 12.5, 0)), False)
sketch4.addConstraint(Sketcher.Constraint("Coincident", 0, 2, 1, 1))
sketch4.addConstraint(Sketcher.Constraint("Coincident", 1, 2, 2, 1))
sketch4.addConstraint(Sketcher.Constraint("Coincident", 2, 2, 3, 1))
sketch4.addConstraint(Sketcher.Constraint("Coincident", 3, 2, 0, 1))
sketch4.addConstraint(Sketcher.Constraint("Horizontal", 0))
sketch4.addConstraint(Sketcher.Constraint("Vertical", 1))
sketch4.addConstraint(Sketcher.Constraint("Horizontal", 2))
sketch4.addConstraint(Sketcher.Constraint("Vertical", 3))
sketch4.addConstraint(Sketcher.Constraint("Symmetric", 0, 2, 1, 2, -1, 1))
sketch4.addConstraint(Sketcher.Constraint("DistanceX", 0, 2, 0, 1, 15.0))
sketch4.addConstraint(Sketcher.Constraint("DistanceY", 1, 2, 1, 1, 25.0))
pad3 = body.newObject("PartDesign::Pad", "Pad002")
pad3.Profile = sketch4
pad3.Length = 20

doc.recompute()
